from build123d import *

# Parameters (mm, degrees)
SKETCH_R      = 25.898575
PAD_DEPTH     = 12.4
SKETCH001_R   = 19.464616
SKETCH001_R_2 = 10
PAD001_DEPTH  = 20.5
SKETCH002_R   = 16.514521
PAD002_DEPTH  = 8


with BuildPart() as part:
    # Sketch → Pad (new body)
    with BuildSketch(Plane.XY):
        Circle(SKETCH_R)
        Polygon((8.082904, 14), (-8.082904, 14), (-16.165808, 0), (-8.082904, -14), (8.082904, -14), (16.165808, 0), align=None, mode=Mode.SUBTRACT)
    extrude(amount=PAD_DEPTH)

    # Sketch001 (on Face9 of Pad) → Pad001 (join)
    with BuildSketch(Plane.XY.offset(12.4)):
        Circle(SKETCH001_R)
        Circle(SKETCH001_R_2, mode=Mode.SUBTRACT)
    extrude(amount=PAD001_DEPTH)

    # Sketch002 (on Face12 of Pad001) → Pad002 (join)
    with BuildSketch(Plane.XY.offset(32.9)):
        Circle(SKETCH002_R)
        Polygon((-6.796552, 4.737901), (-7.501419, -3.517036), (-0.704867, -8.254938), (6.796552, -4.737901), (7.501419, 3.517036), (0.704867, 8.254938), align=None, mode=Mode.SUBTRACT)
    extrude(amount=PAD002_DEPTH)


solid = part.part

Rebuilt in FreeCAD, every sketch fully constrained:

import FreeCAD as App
import Part
import Sketcher
from FreeCAD import Vector
Q = App.Units.Quantity

doc = App.newDocument("Part")
body = doc.addObject("PartDesign::Body", "Body")

# Sketch on XY plane
sketch1 = doc.addObject("Sketcher::SketchObject", "Sketch")
body.addObject(sketch1)
sketch1.AttachmentSupport = (doc.XY_Plane, [""])
sketch1.MapMode = "FlatFace"
sketch1.addGeometry([
    Part.Circle(Vector(0, 0, 0), Vector(0, 0, 1), 25.898575),  # 0
    Part.LineSegment(Vector(-8.082904, 14, 0), Vector(8.082904, 14, 0)),  # 1
    Part.LineSegment(Vector(8.082904, 14, 0), Vector(16.165808, 0, 0)),  # 2
    Part.LineSegment(Vector(16.165808, 0, 0), Vector(8.082904, -14, 0)),  # 3
    Part.LineSegment(Vector(8.082904, -14, 0), Vector(-8.082904, -14, 0)),  # 4
    Part.LineSegment(Vector(-8.082904, -14, 0), Vector(-16.165808, 0, 0)),  # 5
    Part.LineSegment(Vector(-16.165808, 0, 0), Vector(-8.082904, 14, 0)),  # 6
], False)
sketch1.addConstraint([
    Sketcher.Constraint("Coincident", 1, 2, 2, 1),
    Sketcher.Constraint("Coincident", 2, 2, 3, 1),
    Sketcher.Constraint("Coincident", 3, 2, 4, 1),
    Sketcher.Constraint("Coincident", 4, 2, 5, 1),
    Sketcher.Constraint("Coincident", 5, 2, 6, 1),
    Sketcher.Constraint("Coincident", 6, 2, 1, 1),
    Sketcher.Constraint("Horizontal", 1),
    Sketcher.Constraint("Horizontal", 4),
    Sketcher.Constraint("Coincident", 0, 3, -1, 1),
    Sketcher.Constraint("Symmetric", 1, 2, 4, 2, -1, 1),
    Sketcher.Constraint("Symmetric", 2, 2, 5, 2, -1, 1),
    Sketcher.Constraint("PointOnObject", 2, 2, -1),
    Sketcher.Constraint("Parallel", 3, 6),
    Sketcher.Constraint("Vertical", 1, 2, 3, 2),
    Sketcher.Constraint("Angle", 2, Q("-59.999999 deg")),
    Sketcher.Constraint("DistanceY", -1, 1, 1, 2, 14.0),
    Sketcher.Constraint("Diameter", 0, 51.79715),
    Sketcher.Constraint("DistanceX", 1, 1, 1, 2, 16.165808),
])
pad1 = doc.addObject("PartDesign::Pad", "Pad")
body.addObject(pad1)
pad1.Profile = sketch1
pad1.Length = 12.4

# Sketch on XY plane
sketch2 = doc.addObject("Sketcher::SketchObject", "Sketch001")
body.addObject(sketch2)
sketch2.AttachmentSupport = (doc.XY_Plane, [""])
sketch2.MapMode = "FlatFace"
sketch2.AttachmentOffset = App.Placement(Vector(0, 0, 12.4), App.Rotation())
sketch2.addGeometry([
    Part.Circle(Vector(0, 0, 0), Vector(0, 0, 1), 19.464616),
    Part.Circle(Vector(0, 0, 0), Vector(0, 0, 1), 10),
], False)
sketch2.addConstraint([
    Sketcher.Constraint("Coincident", 0, 3, -1, 1),
    Sketcher.Constraint("Coincident", 1, 3, -1, 1),
    Sketcher.Constraint("Diameter", 1, 20.0),
    Sketcher.Constraint("Diameter", 0, 38.929232),
])
pad2 = doc.addObject("PartDesign::Pad", "Pad001")
body.addObject(pad2)
pad2.Profile = sketch2
pad2.Length = 20.5

# Sketch on XY plane
sketch3 = doc.addObject("Sketcher::SketchObject", "Sketch002")
body.addObject(sketch3)
sketch3.AttachmentSupport = (doc.XY_Plane, [""])
sketch3.MapMode = "FlatFace"
sketch3.AttachmentOffset = App.Placement(Vector(0, 0, 32.9), App.Rotation())
sketch3.addGeometry([
    Part.Circle(Vector(0, 0, 0), Vector(0, 0, 1), 16.514521),  # 0
    Part.LineSegment(Vector(-7.501419, -3.517036, 0), Vector(-6.796552, 4.737901, 0)),  # 1
    Part.LineSegment(Vector(-6.796552, 4.737901, 0), Vector(0.704867, 8.254938, 0)),  # 2
    Part.LineSegment(Vector(0.704867, 8.254938, 0), Vector(7.501419, 3.517036, 0)),  # 3
    Part.LineSegment(Vector(7.501419, 3.517036, 0), Vector(6.796552, -4.737901, 0)),  # 4
    Part.LineSegment(Vector(6.796552, -4.737901, 0), Vector(-0.704867, -8.254938, 0)),  # 5
    Part.LineSegment(Vector(-0.704867, -8.254938, 0), Vector(-7.501419, -3.517036, 0)),  # 6
], False)
sketch3.addConstraint([
    Sketcher.Constraint("Coincident", 1, 2, 2, 1),
    Sketcher.Constraint("Coincident", 2, 2, 3, 1),
    Sketcher.Constraint("Coincident", 3, 2, 4, 1),
    Sketcher.Constraint("Coincident", 4, 2, 5, 1),
    Sketcher.Constraint("Coincident", 5, 2, 6, 1),
    Sketcher.Constraint("Coincident", 6, 2, 1, 1),
    Sketcher.Constraint("Coincident", 0, 3, -1, 1),
    Sketcher.Constraint("Symmetric", 1, 2, 4, 2, -1, 1),
    Sketcher.Constraint("Symmetric", 2, 2, 5, 2, -1, 1),
    Sketcher.Constraint("Symmetric", 3, 2, 6, 2, -1, 1),
    Sketcher.Constraint("Equal", 1, 2),
    Sketcher.Constraint("Equal", 2, 3),
    Sketcher.Constraint("Diameter", 0, 33.029042),
    Sketcher.Constraint("DistanceY", -1, 1, 1, 2, 4.737901),
    Sketcher.Constraint("DistanceY", 3, 2, 2, 2, 4.737902),
    Sketcher.Constraint("DistanceX", -1, 1, 3, 2, 7.501419),
    Sketcher.Constraint("DistanceX", 1, 2, 2, 2, 7.501419),
])
pad3 = doc.addObject("PartDesign::Pad", "Pad002")
body.addObject(pad3)
pad3.Profile = sketch3
pad3.Length = 8

doc.recompute()
